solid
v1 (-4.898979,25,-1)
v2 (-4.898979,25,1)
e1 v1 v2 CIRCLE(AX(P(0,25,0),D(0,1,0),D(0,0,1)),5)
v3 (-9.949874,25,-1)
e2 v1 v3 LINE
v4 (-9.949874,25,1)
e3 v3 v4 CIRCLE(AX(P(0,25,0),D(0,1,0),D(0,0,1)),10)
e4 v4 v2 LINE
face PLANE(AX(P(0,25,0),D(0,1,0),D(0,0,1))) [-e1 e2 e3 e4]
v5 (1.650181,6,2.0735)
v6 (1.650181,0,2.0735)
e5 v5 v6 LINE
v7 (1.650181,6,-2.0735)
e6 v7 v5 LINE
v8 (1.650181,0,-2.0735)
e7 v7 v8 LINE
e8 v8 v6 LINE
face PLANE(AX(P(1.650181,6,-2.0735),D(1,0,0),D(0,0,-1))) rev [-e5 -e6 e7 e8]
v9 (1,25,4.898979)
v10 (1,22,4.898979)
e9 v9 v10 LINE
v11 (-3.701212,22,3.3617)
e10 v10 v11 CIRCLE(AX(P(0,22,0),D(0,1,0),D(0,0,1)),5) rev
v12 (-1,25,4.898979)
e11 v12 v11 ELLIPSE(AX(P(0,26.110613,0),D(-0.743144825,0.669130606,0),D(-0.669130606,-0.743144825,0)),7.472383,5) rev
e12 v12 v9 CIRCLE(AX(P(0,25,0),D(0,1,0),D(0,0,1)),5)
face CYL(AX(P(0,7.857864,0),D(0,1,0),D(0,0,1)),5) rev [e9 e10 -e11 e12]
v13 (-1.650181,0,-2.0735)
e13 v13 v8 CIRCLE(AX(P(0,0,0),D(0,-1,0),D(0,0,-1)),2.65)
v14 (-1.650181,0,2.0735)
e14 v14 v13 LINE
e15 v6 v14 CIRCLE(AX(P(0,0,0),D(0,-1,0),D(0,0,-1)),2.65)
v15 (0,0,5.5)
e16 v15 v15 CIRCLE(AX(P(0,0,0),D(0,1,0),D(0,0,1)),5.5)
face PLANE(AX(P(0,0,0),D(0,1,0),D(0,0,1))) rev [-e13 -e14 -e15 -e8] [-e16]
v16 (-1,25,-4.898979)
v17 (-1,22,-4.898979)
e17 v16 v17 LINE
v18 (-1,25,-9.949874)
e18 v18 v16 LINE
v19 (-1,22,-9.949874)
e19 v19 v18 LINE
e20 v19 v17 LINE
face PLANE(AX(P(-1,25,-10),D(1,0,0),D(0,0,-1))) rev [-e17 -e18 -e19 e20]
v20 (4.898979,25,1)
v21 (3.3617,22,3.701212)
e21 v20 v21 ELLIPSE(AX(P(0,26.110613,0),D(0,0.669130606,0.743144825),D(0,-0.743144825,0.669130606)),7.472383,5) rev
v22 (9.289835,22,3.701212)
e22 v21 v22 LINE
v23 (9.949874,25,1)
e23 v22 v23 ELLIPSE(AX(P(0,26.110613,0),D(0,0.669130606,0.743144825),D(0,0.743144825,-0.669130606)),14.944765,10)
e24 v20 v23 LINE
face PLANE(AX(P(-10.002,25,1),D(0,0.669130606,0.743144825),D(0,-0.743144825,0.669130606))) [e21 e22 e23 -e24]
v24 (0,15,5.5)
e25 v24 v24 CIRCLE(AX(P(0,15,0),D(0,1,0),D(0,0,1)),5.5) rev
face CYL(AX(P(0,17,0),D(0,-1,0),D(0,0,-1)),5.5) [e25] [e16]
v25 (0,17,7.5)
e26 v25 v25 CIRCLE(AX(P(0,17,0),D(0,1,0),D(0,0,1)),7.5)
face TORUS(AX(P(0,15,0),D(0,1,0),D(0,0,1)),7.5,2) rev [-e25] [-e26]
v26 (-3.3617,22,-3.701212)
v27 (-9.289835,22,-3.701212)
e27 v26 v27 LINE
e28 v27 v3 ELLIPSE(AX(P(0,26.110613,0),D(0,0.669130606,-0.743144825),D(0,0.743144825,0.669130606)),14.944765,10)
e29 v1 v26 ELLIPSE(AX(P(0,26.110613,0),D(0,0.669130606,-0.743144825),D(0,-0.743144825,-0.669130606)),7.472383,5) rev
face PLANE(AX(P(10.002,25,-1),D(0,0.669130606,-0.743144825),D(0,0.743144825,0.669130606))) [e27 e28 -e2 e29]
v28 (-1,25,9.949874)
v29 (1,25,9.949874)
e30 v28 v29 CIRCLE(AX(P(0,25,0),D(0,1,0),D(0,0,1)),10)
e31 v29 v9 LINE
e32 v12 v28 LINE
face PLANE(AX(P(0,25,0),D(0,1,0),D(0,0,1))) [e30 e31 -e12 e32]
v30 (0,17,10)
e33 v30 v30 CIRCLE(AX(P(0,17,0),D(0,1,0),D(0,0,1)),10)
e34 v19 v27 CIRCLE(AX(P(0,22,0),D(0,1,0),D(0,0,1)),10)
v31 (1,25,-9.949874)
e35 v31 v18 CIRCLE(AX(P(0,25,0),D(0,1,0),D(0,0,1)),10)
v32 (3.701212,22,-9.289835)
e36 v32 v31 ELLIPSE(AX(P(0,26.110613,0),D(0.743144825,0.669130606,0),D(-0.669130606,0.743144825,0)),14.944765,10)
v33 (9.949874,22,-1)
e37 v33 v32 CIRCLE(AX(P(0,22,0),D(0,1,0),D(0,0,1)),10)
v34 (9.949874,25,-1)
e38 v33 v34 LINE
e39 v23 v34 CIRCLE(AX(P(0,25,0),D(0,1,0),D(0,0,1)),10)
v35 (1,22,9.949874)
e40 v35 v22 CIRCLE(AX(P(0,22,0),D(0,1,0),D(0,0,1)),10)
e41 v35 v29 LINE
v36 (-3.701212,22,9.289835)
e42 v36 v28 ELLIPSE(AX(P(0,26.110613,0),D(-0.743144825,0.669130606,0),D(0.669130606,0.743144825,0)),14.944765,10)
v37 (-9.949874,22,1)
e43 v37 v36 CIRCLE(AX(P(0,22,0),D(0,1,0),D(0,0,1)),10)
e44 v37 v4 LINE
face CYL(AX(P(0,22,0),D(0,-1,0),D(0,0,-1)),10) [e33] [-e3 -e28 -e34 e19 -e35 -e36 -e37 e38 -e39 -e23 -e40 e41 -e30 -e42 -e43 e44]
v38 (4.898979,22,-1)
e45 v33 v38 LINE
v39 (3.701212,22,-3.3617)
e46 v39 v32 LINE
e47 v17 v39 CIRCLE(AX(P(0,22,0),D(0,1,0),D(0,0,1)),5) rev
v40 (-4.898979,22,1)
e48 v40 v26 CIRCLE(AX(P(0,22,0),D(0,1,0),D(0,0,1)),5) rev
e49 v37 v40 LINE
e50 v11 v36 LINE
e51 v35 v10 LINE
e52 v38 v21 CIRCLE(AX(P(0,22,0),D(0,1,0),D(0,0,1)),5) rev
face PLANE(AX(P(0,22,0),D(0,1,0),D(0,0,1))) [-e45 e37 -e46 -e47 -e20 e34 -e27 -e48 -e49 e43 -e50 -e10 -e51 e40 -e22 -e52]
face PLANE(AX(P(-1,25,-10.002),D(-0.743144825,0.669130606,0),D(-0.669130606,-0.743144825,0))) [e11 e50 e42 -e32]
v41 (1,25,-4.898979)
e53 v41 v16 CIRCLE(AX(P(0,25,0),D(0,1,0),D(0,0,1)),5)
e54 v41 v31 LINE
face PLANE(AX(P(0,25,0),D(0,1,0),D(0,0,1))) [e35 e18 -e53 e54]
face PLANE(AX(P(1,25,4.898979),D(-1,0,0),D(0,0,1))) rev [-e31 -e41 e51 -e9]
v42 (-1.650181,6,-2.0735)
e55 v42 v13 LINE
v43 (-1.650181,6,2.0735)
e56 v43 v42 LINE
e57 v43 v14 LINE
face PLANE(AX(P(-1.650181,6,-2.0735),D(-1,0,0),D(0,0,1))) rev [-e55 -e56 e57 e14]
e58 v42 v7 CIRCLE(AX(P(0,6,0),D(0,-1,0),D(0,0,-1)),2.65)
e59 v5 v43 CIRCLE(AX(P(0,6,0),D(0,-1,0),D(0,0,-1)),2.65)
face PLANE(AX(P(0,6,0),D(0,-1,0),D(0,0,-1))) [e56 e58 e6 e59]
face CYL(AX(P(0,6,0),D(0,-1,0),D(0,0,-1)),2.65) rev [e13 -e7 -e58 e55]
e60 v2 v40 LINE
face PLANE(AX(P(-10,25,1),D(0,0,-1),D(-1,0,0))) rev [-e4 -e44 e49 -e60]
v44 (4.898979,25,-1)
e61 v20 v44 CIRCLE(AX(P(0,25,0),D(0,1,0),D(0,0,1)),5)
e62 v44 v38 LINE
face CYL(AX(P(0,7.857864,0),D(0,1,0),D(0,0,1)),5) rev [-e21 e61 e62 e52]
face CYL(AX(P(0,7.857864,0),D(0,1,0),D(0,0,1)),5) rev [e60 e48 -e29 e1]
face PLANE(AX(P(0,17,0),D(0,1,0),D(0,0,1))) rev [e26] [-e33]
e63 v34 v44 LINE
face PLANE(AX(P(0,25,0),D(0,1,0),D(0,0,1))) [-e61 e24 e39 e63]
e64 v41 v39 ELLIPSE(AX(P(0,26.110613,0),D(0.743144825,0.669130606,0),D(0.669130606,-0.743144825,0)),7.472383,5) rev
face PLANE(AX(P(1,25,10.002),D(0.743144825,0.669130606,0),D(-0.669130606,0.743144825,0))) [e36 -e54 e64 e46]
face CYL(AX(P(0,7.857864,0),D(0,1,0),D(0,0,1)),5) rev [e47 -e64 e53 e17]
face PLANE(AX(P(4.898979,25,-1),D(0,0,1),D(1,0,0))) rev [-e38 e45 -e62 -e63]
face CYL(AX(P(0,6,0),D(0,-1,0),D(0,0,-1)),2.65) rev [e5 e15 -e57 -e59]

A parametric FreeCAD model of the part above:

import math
import FreeCAD as App
import Part
import Sketcher
from FreeCAD import Vector
Q = App.Units.Quantity


def edges_at(feature, points):
    """Names of the edges that pass closest to the given points."""
    edges = feature.Shape.Edges
    near = lambda p: min(range(len(edges)), key=lambda i: edges[i].distToShape(Part.Vertex(*p))[0])
    return sorted({f"Edge{near(p) + 1}" for p in points})

doc = App.newDocument("Part")
body = doc.addObject("PartDesign::Body", "Body")

# Sketch on XZ plane
sketch1 = body.newObject("Sketcher::SketchObject", "Sketch")
sketch1.AttachmentSupport = (doc.getObject("XZ_Plane"), [""])
sketch1.MapMode = "FlatFace"
sketch1.addGeometry(Part.Circle(Vector(0, 0, 0), Vector(0, 0, 1), 6), False)
sketch1.addConstraint(Sketcher.Constraint("Coincident", 0, 3, -1, 1))
sketch1.addConstraint(Sketcher.Constraint("Diameter", 0, Q("11 mm")))
pad1 = body.newObject("PartDesign::Pad", "Pad")
pad1.Profile = sketch1
pad1.Length = 17
pad1.Reversed = True

# Sketch on XZ plane
sketch2 = body.newObject("Sketcher::SketchObject", "Sketch001")
sketch2.AttachmentSupport = (doc.getObject("XZ_Plane"), [""])
sketch2.MapMode = "FlatFace"
sketch2.AttachmentOffset = App.Placement(Vector(0, 0, -17), App.Rotation())
sketch2.addGeometry(Part.Circle(Vector(0, 0, 0), Vector(0, 0, 1), 10), False)
sketch2.addConstraint(Sketcher.Constraint("Coincident", 0, 3, -1, 1))
sketch2.addConstraint(Sketcher.Constraint("Diameter", 0, Q("20 mm")))
pad2 = body.newObject("PartDesign::Pad", "Pad001")
pad2.Profile = sketch2
pad2.Length = 5
pad2.Reversed = True

# Sketch on XZ plane
sketch3 = body.newObject("Sketcher::SketchObject", "Sketch002")
sketch3.AttachmentSupport = (doc.getObject("XZ_Plane"), [""])
sketch3.MapMode = "FlatFace"
sketch3.AttachmentOffset = App.Placement(Vector(0, 0, -22), App.Rotation())
sketch3.addGeometry(Part.LineSegment(Vector(1, -10, 0), Vector(-1, -10, 0)), False)
sketch3.addGeometry(Part.LineSegment(Vector(-1, -10, 0), Vector(-1, -4.9, 0)), False)
sketch3.addGeometry(Part.ArcOfCircle(Part.Circle(Vector(0, 0, 0), Vector(0, 0, 1), 5), math.radians(-168), math.radians(-102)), False)
sketch3.addGeometry(Part.LineSegment(Vector(-4.9, -1, 0), Vector(-10, -1, 0)), False)
sketch3.addGeometry(Part.LineSegment(Vector(-10, -1, 0), Vector(-10, 1, 0)), False)
sketch3.addGeometry(Part.LineSegment(Vector(-10, 1, 0), Vector(-4.9, 1, 0)), False)
sketch3.addGeometry(Part.ArcOfCircle(Part.Circle(Vector(0, 0, 0), Vector(0, 0, 1), 5), math.radians(102), math.radians(168)), False)
sketch3.addGeometry(Part.LineSegment(Vector(-1, 4.9, 0), Vector(-1, 10, 0)), False)
sketch3.addGeometry(Part.LineSegment(Vector(-1, 10, 0), Vector(1, 10, 0)), False)
sketch3.addGeometry(Part.LineSegment(Vector(1, 10, 0), Vector(1, 4.9, 0)), False)
sketch3.addGeometry(Part.ArcOfCircle(Part.Circle(Vector(0, 0, 0), Vector(0, 0, 1), 5), math.radians(12), math.radians(78)), False)
sketch3.addGeometry(Part.LineSegment(Vector(4.9, 1, 0), Vector(10, 1, 0)), False)
sketch3.addGeometry(Part.LineSegment(Vector(10, 1, 0), Vector(10, -1, 0)), False)
sketch3.addGeometry(Part.LineSegment(Vector(10, -1, 0), Vector(4.9, -1, 0)), False)
sketch3.addGeometry(Part.ArcOfCircle(Part.Circle(Vector(0, 0, 0), Vector(0, 0, 1), 5), math.radians(-78), math.radians(-12)), False)
sketch3.addGeometry(Part.LineSegment(Vector(1, -4.9, 0), Vector(1, -10, 0)), False)
sketch3.addConstraint(Sketcher.Constraint("Coincident", 0, 2, 1, 1))
sketch3.addConstraint(Sketcher.Constraint("Coincident", 1, 2, 2, 2))
sketch3.addConstraint(Sketcher.Constraint("Coincident", 2, 1, 3, 1))
sketch3.addConstraint(Sketcher.Constraint("Coincident", 3, 2, 4, 1))
sketch3.addConstraint(Sketcher.Constraint("Coincident", 4, 2, 5, 1))
sketch3.addConstraint(Sketcher.Constraint("Coincident", 5, 2, 6, 2))
sketch3.addConstraint(Sketcher.Constraint("Coincident", 6, 1, 7, 1))
sketch3.addConstraint(Sketcher.Constraint("Coincident", 7, 2, 8, 1))
sketch3.addConstraint(Sketcher.Constraint("Coincident", 8, 2, 9, 1))
sketch3.addConstraint(Sketcher.Constraint("Coincident", 9, 2, 10, 2))
sketch3.addConstraint(Sketcher.Constraint("Coincident", 10, 1, 11, 1))
sketch3.addConstraint(Sketcher.Constraint("Coincident", 11, 2, 12, 1))
sketch3.addConstraint(Sketcher.Constraint("Coincident", 12, 2, 13, 1))
sketch3.addConstraint(Sketcher.Constraint("Coincident", 13, 2, 14, 2))
sketch3.addConstraint(Sketcher.Constraint("Coincident", 14, 1, 15, 1))
sketch3.addConstraint(Sketcher.Constraint("Coincident", 15, 2, 0, 1))
sketch3.addConstraint(Sketcher.Constraint("Horizontal", 0))
sketch3.addConstraint(Sketcher.Constraint("Vertical", 1))
sketch3.addConstraint(Sketcher.Constraint("Horizontal", 3))
sketch3.addConstraint(Sketcher.Constraint("Vertical", 4))
sketch3.addConstraint(Sketcher.Constraint("Horizontal", 5))
sketch3.addConstraint(Sketcher.Constraint("Vertical", 7))
sketch3.addConstraint(Sketcher.Constraint("Horizontal", 8))
sketch3.addConstraint(Sketcher.Constraint("Vertical", 9))
sketch3.addConstraint(Sketcher.Constraint("Horizontal", 11))
sketch3.addConstraint(Sketcher.Constraint("Vertical", 12))
sketch3.addConstraint(Sketcher.Constraint("Horizontal", 13))
sketch3.addConstraint(Sketcher.Constraint("Vertical", 15))
sketch3.addConstraint(Sketcher.Constraint("Coincident", 2, 3, -1, 1))
sketch3.addConstraint(Sketcher.Constraint("Coincident", 6, 3, -1, 1))
sketch3.addConstraint(Sketcher.Constraint("Coincident", 10, 3, -1, 1))
sketch3.addConstraint(Sketcher.Constraint("Coincident", 14, 3, -1, 1))
sketch3.addConstraint(Sketcher.Constraint("Equal", 2, 6))
sketch3.addConstraint(Sketcher.Constraint("Equal", 6, 10))
sketch3.addConstraint(Sketcher.Constraint("Equal", 10, 14))
sketch3.addConstraint(Sketcher.Constraint("Symmetric", 0, 2, 8, 2, -1, 1))
sketch3.addConstraint(Sketcher.Constraint("Symmetric", 3, 2, 11, 2, -1, 1))
sketch3.addConstraint(Sketcher.Constraint("Horizontal", 6, 1, 9, 2))
sketch3.addConstraint(Sketcher.Constraint("Horizontal", 5, 2, 10, 1))
sketch3.addConstraint(Sketcher.Constraint("Horizontal", 3, 2, 12, 2))
sketch3.addConstraint(Sketcher.Constraint("Horizontal", 1, 2, 14, 1))
sketch3.addConstraint(Sketcher.Constraint("Equal", 13, 1))
sketch3.addConstraint(Sketcher.Constraint("Equal", 8, 4))
sketch3.addConstraint(Sketcher.Constraint("Radius", 2, Q("5 mm")))
sketch3.addConstraint(Sketcher.Constraint("DistanceX", 0, 2, 0, 1, Q("2 mm")))
sketch3.addConstraint(Sketcher.Constraint("DistanceY", 0, 2, -1, 1, Q("10 mm")))
pad3 = body.newObject("PartDesign::Pad", "Pad002")
pad3.Profile = sketch3
pad3.Length = 3
pad3.Reversed = True

# Sketch on XY plane
sketch4 = body.newObject("Sketcher::SketchObject", "Sketch003")
sketch4.AttachmentSupport = (doc.getObject("XY_Plane"), [""])
sketch4.MapMode = "FlatFace"
sketch4.AttachmentOffset = App.Placement(Vector(0, 0, -3.3617), App.Rotation())
sketch4.addGeometry(Part.LineSegment(Vector(1, 25, 0), Vector(3.7, 22, 0)), False)
sketch4.addGeometry(Part.LineSegment(Vector(3.7, 22, 0), Vector(1, 22, 0)), False)
sketch4.addGeometry(Part.LineSegment(Vector(1, 22, 0), Vector(1, 25, 0)), False)
sketch4.addConstraint(Sketcher.Constraint("Coincident", 0, 2, 1, 1))
sketch4.addConstraint(Sketcher.Constraint("Coincident", 1, 2, 2, 1))
sketch4.addConstraint(Sketcher.Constraint("Coincident", 2, 2, 0, 1))
sketch4.addConstraint(Sketcher.Constraint("Horizontal", 1))
sketch4.addConstraint(Sketcher.Constraint("Vertical", 2))
sketch4.addConstraint(Sketcher.Constraint("DistanceY", 2, 1, 2, 2, Q("3 mm")))
sketch4.addConstraint(Sketcher.Constraint("Angle", 0, Q("-48 deg")))
sketch4.addConstraint(Sketcher.Constraint("DistanceY", -1, 1, 0, 2, Q("22 mm")))
sketch4.addConstraint(Sketcher.Constraint("DistanceX", -1, 1, 1, 2, Q("1 mm")))
pad4 = body.newObject("PartDesign::Pad", "Pad003")
pad4.Profile = sketch4
pad4.Length = 6.6383
pad4.Reversed = True
doc.recompute()

polarpattern = body.newObject("PartDesign::PolarPattern", "PolarPattern")
polarpattern.Originals = [pad4]
polarpattern.Axis = (doc.getObject("Y_Axis"), [""])
polarpattern.Angle = 360
polarpattern.Occurrences = 4
body.Tip = polarpattern

# Sketch on XZ plane
sketch5 = body.newObject("Sketcher::SketchObject", "Sketch004")
sketch5.AttachmentSupport = (doc.getObject("XZ_Plane"), [""])
sketch5.MapMode = "FlatFace"
sketch5.AttachmentOffset = App.Placement(Vector(0, 0, -22), App.Rotation())
sketch5.addGeometry(Part.Circle(Vector(0, 0, 0), Vector(0, 0, 1), 13.3), False)
sketch5.addGeometry(Part.ArcOfCircle(Part.Circle(Vector(0, 0, 0), Vector(0, 0, 1), 10), math.radians(-68), math.radians(-6)), False)
sketch5.addGeometry(Part.ArcOfCircle(Part.Circle(Vector(0, 0, 0), Vector(0, 0, 1), 10), math.radians(-5.74), math.radians(0)), False)
sketch5.addGeometry(Part.ArcOfCircle(Part.Circle(Vector(0, 0, 0), Vector(0, 0, 1), 10), math.radians(0), math.radians(292)), False)
sketch5.addConstraint(Sketcher.Constraint("Tangent", 1, 2, 2, 1))
sketch5.addConstraint(Sketcher.Constraint("Tangent", 2, 2, 3, 1))
sketch5.addConstraint(Sketcher.Constraint("Tangent", 3, 2, 1, 1))
sketch5.addConstraint(Sketcher.Constraint("Coincident", 0, 3, -1, 1))
sketch5.addConstraint(Sketcher.Constraint("Coincident", 1, 3, -1, 1))
sketch5.addConstraint(Sketcher.Constraint("PointOnObject", 2, 2, -1))
sketch5.addConstraint(Sketcher.Constraint("Radius", 1, Q("10 mm")))
sketch5.addConstraint(Sketcher.Constraint("DistanceY", 1, 2, -1, 1, Q("1 mm")))
sketch5.addConstraint(Sketcher.Constraint("Diameter", 0, Q("26.602527 mm")))
sketch5.addConstraint(Sketcher.Constraint("DistanceX", -1, 1, 3, 2, Q("3.701212 mm")))
pocket1 = body.newObject("PartDesign::Pocket", "Pocket")
pocket1.Profile = sketch5
pocket1.Type = "ThroughAll"
pocket1.Midplane = True
doc.recompute()

fillet = body.newObject("PartDesign::Fillet", "Fillet")
fillet.Base = (pocket1, edges_at(pocket1, [(0, 17, -5.5)]))
fillet.Radius = 2

# Sketch on XZ plane
sketch6 = body.newObject("Sketcher::SketchObject", "Sketch005")
sketch6.AttachmentSupport = (doc.getObject("XZ_Plane"), [""])
sketch6.MapMode = "FlatFace"
sketch6.addGeometry(Part.LineSegment(Vector(1.7, -2.1, 0), Vector(1.7, 2.1, 0)), False)
sketch6.addGeometry(Part.ArcOfCircle(Part.Circle(Vector(0, 0, 0), Vector(0, 0, 1), 2.6), math.radians(51), math.radians(129)), False)
sketch6.addGeometry(Part.LineSegment(Vector(-1.7, 2.1, 0), Vector(-1.7, -2.1, 0)), False)
sketch6.addGeometry(Part.ArcOfCircle(Part.Circle(Vector(0, 0, 0), Vector(0, 0, 1), 2.6), math.radians(-129), math.radians(-51)), False)
sketch6.addConstraint(Sketcher.Constraint("Coincident", 0, 2, 1, 1))
sketch6.addConstraint(Sketcher.Constraint("Coincident", 1, 2, 2, 1))
sketch6.addConstraint(Sketcher.Constraint("Coincident", 2, 2, 3, 1))
sketch6.addConstraint(Sketcher.Constraint("Coincident", 3, 2, 0, 1))
sketch6.addConstraint(Sketcher.Constraint("Vertical", 0))
sketch6.addConstraint(Sketcher.Constraint("Vertical", 2))
sketch6.addConstraint(Sketcher.Constraint("Coincident", 1, 3, -1, 1))
sketch6.addConstraint(Sketcher.Constraint("Coincident", 3, 3, -1, 1))
sketch6.addConstraint(Sketcher.Constraint("Equal", 1, 3))
sketch6.addConstraint(Sketcher.Constraint("Horizontal", 0, 2, 1, 2))
sketch6.addConstraint(Sketcher.Constraint("Radius", 1, Q("2.65 mm")))
sketch6.addConstraint(Sketcher.Constraint("DistanceY", 0, 1, 0, 2, Q("4.147 mm")))
pocket2 = body.newObject("PartDesign::Pocket", "Pocket001")
pocket2.Profile = sketch6
pocket2.Length = 6

# Sketch on XZ plane
sketch7 = body.newObject("Sketcher::SketchObject", "Sketch006")
sketch7.AttachmentSupport = (doc.getObject("XZ_Plane"), [""])
sketch7.MapMode = "FlatFace"
sketch7.AttachmentOffset = App.Placement(Vector(0, 0, -25), App.Rotation())
sketch7.addGeometry(Part.Circle(Vector(0, 0, 0), Vector(0, 0, 1), 5), False)
sketch7.addConstraint(Sketcher.Constraint("Coincident", 0, 3, -1, 1))
sketch7.addConstraint(Sketcher.Constraint("Diameter", 0, Q("10 mm")))
pocket3 = body.newObject("PartDesign::Pocket", "Pocket002")
pocket3.Profile = sketch7
pocket3.Length = 3
pocket3.Reversed = True

doc.recompute()
